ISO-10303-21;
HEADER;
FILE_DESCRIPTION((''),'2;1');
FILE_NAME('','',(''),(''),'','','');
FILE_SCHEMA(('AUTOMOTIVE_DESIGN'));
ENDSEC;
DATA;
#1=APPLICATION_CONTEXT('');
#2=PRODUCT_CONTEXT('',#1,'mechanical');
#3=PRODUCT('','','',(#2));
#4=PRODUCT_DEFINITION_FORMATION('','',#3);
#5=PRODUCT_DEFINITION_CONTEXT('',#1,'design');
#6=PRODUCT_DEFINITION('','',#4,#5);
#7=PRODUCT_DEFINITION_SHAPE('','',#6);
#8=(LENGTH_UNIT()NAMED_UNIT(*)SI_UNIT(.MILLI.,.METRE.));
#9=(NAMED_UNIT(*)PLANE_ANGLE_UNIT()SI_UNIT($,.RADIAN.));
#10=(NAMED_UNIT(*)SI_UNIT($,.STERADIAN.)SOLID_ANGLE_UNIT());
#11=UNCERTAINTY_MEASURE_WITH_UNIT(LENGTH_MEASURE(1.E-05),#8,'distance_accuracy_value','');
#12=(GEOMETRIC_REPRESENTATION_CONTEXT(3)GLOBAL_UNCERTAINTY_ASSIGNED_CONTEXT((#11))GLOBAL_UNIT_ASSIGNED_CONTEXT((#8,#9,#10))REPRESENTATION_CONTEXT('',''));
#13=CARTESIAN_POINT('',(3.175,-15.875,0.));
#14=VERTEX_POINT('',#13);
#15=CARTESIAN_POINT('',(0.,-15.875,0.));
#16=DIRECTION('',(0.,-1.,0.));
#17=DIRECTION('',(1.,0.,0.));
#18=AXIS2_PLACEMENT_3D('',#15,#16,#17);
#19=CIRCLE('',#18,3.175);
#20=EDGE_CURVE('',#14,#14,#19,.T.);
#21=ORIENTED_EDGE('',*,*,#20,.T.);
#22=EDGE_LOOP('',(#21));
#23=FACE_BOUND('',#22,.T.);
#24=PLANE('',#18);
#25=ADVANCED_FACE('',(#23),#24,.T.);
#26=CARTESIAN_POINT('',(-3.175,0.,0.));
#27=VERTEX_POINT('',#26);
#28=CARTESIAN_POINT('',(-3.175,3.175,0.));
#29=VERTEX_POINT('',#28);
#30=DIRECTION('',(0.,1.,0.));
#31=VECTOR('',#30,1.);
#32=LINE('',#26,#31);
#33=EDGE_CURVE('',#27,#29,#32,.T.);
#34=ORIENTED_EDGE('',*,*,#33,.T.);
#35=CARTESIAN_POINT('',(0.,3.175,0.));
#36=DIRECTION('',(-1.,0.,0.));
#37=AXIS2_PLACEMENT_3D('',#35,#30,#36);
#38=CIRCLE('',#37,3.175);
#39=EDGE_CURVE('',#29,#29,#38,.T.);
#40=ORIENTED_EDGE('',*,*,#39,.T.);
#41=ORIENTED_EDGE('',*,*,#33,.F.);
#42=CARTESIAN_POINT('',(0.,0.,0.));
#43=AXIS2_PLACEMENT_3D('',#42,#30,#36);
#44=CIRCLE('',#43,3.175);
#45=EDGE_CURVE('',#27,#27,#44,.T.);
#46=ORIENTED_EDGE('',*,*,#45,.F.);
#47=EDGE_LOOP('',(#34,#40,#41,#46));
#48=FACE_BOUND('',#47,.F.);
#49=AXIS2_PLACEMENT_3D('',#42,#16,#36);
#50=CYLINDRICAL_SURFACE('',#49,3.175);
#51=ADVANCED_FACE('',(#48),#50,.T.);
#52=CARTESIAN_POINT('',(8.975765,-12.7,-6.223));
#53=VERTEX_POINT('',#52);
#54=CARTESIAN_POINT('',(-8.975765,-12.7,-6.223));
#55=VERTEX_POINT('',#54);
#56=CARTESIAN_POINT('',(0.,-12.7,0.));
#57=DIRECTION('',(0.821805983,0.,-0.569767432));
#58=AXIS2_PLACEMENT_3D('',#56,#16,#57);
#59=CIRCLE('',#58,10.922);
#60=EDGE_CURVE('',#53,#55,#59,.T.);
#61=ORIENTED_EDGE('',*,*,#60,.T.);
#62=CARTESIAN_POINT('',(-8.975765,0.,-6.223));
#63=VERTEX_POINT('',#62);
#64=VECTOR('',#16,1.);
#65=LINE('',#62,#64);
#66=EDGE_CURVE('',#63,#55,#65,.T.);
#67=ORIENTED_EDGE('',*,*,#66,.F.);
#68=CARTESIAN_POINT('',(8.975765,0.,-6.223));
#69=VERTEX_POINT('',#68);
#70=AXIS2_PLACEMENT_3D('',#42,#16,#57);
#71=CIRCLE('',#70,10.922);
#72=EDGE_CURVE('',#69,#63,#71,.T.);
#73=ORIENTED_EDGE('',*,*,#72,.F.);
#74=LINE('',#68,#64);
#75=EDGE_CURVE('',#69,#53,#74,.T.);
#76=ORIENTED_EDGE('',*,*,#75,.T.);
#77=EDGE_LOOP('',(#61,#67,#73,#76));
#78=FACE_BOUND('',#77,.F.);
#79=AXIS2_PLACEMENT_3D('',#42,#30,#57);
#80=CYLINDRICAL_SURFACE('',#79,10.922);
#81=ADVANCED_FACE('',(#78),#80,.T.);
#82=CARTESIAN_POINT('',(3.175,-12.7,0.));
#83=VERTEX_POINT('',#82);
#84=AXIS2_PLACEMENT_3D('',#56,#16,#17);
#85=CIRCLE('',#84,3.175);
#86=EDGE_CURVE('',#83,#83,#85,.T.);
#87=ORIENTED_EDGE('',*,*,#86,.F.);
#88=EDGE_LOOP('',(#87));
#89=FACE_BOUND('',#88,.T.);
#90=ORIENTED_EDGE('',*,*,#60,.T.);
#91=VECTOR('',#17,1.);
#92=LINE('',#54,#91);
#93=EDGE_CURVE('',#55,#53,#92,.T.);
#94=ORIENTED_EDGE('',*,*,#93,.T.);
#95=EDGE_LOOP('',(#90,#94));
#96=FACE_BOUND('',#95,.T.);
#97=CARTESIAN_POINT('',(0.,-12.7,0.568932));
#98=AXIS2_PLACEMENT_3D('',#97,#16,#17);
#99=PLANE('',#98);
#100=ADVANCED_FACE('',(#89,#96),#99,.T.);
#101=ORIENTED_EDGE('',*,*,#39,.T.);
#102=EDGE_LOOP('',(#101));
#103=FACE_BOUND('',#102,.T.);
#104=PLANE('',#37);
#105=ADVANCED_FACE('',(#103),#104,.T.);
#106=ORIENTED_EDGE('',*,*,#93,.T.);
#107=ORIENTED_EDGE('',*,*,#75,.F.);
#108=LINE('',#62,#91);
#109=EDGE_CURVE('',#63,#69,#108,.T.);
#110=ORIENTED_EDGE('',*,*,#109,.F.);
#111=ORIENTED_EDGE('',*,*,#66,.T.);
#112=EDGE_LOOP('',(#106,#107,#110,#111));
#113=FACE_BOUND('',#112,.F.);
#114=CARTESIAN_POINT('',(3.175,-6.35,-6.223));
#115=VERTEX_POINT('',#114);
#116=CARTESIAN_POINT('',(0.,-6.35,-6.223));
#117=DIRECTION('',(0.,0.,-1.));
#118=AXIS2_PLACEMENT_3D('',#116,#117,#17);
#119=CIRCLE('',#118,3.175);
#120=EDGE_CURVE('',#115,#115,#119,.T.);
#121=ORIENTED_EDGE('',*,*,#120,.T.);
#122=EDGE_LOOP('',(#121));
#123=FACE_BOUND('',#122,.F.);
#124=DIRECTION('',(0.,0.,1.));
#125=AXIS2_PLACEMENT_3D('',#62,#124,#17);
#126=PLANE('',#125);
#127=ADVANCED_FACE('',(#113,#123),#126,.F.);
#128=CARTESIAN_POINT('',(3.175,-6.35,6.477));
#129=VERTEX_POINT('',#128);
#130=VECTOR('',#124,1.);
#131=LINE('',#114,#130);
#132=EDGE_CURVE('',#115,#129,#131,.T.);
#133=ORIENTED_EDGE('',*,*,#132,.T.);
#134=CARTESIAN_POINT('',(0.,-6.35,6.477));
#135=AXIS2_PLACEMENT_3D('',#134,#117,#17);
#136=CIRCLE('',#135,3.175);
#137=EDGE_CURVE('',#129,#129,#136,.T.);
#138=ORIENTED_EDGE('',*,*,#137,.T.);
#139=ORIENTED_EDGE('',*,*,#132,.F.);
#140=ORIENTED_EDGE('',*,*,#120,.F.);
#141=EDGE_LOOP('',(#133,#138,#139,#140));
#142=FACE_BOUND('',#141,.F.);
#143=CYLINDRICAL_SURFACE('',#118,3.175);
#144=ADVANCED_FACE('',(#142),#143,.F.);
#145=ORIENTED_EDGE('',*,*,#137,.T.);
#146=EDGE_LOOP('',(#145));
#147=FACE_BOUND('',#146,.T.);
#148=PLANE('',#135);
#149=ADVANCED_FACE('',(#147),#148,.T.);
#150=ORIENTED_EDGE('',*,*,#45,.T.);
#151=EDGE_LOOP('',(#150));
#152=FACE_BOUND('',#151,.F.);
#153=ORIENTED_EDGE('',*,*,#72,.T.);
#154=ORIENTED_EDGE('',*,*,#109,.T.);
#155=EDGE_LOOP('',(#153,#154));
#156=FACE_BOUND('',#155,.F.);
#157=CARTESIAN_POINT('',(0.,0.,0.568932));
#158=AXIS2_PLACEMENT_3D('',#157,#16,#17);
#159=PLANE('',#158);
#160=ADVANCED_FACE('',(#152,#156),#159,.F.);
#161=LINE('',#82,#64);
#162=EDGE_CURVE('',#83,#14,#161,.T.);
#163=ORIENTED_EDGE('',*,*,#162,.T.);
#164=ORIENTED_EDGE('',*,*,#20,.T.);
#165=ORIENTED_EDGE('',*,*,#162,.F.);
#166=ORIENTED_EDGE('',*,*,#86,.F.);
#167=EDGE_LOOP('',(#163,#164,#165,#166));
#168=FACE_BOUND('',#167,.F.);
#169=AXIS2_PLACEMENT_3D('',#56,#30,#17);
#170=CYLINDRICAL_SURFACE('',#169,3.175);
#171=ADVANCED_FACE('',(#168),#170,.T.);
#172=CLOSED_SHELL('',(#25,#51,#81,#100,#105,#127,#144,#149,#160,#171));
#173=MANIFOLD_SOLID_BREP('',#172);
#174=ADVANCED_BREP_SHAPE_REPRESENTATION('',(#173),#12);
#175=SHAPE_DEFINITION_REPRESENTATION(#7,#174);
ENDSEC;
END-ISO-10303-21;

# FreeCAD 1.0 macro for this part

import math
import FreeCAD as App
import Part
import Sketcher
from FreeCAD import Vector
Q = App.Units.Quantity

doc = App.newDocument("Part")
body = doc.addObject("PartDesign::Body", "Body")

sketch1 = doc.addObject("Sketcher::SketchObject", "Sketch")
body.addObject(sketch1)
sketch1.AttachmentSupport = (doc.XZ_Plane, [""])
sketch1.MapMode = "FlatFace"
sketch1.addGeometry([
    Part.LineSegment(Vector(-8.975765, -6.223, 0), Vector(8.975765, -6.223, 0)),
    Part.ArcOfCircle(Part.Circle(Vector(0, 0, 0), Vector(0, 0, 1), 10.922), math.radians(-34.73401), math.radians(214.73401)),
], False)
sketch1.addConstraint([
    Sketcher.Constraint("Coincident", 0, 1, 1, 2),
    Sketcher.Constraint("Coincident", 1, 1, 0, 2),
    Sketcher.Constraint("Horizontal", 0),
    Sketcher.Constraint("Coincident", 1, 3, -1, 1),
    Sketcher.Constraint("Radius", 1, Q("0.43 in")),
    Sketcher.Constraint("DistanceY", 0, 1, -1, 1, Q("0.245 in")),
])
pad1 = doc.addObject("PartDesign::Pad", "Pad")
body.addObject(pad1)
pad1.Profile = sketch1
pad1.Length = Q("0.5 in")

sketch2 = doc.addObject("Sketcher::SketchObject", "Sketch001")
body.addObject(sketch2)
sketch2.AttachmentSupport = (doc.XZ_Plane, [""])
sketch2.MapMode = "FlatFace"
sketch2.AttachmentOffset = App.Placement(Vector(0, 0, 0.5 * 25.4), App.Rotation())
sketch2.addGeometry(Part.Circle(Vector(0, 0, 0), Vector(0, 0, 1), 3.175), False)
sketch2.addConstraint([
    Sketcher.Constraint("Coincident", 0, 3, -1, 1),
    Sketcher.Constraint("Diameter", 0, Q("0.25 in")),
])
pad2 = doc.addObject("PartDesign::Pad", "Pad001")
body.addObject(pad2)
pad2.Profile = sketch2
pad2.Length = Q("0.125 in")

sketch3 = doc.addObject("Sketcher::SketchObject", "Sketch002")
body.addObject(sketch3)
sketch3.AttachmentSupport = (doc.XZ_Plane, [""])
sketch3.MapMode = "FlatFace"
sketch3.addGeometry(Part.Circle(Vector(0, 0, 0), Vector(0, 0, 1), 3.175), False)
sketch3.addConstraint([
    Sketcher.Constraint("Coincident", 0, 3, -1, 1),
    Sketcher.Constraint("Diameter", 0, Q("0.25 in")),
])
pad3 = doc.addObject("PartDesign::Pad", "Pad002")
body.addObject(pad3)
pad3.Profile = sketch3
pad3.Length = Q("0.125 in")
pad3.Reversed = True

sketch4 = doc.addObject("Sketcher::SketchObject", "Sketch003")
body.addObject(sketch4)
sketch4.AttachmentSupport = (doc.XY_Plane, [""])
sketch4.MapMode = "FlatFace"
sketch4.AttachmentOffset = App.Placement(Vector(0, 0, -0.245 * 25.4), App.Rotation())
sketch4.addGeometry(Part.Circle(Vector(0, -6.35, 0), Vector(0, 0, 1), 3.175), False)
sketch4.addConstraint([
    Sketcher.Constraint("PointOnObject", 0, 3, -2),
    Sketcher.Constraint("Diameter", 0, Q("0.25 in")),
    Sketcher.Constraint("DistanceY", 0, 3, -1, 1, Q("0.25 in")),
])
pocket1 = doc.addObject("PartDesign::Pocket", "Pocket")
body.addObject(pocket1)
pocket1.Profile = sketch4
pocket1.Length = Q("0.5 in")
pocket1.Reversed = True

doc.recompute()
